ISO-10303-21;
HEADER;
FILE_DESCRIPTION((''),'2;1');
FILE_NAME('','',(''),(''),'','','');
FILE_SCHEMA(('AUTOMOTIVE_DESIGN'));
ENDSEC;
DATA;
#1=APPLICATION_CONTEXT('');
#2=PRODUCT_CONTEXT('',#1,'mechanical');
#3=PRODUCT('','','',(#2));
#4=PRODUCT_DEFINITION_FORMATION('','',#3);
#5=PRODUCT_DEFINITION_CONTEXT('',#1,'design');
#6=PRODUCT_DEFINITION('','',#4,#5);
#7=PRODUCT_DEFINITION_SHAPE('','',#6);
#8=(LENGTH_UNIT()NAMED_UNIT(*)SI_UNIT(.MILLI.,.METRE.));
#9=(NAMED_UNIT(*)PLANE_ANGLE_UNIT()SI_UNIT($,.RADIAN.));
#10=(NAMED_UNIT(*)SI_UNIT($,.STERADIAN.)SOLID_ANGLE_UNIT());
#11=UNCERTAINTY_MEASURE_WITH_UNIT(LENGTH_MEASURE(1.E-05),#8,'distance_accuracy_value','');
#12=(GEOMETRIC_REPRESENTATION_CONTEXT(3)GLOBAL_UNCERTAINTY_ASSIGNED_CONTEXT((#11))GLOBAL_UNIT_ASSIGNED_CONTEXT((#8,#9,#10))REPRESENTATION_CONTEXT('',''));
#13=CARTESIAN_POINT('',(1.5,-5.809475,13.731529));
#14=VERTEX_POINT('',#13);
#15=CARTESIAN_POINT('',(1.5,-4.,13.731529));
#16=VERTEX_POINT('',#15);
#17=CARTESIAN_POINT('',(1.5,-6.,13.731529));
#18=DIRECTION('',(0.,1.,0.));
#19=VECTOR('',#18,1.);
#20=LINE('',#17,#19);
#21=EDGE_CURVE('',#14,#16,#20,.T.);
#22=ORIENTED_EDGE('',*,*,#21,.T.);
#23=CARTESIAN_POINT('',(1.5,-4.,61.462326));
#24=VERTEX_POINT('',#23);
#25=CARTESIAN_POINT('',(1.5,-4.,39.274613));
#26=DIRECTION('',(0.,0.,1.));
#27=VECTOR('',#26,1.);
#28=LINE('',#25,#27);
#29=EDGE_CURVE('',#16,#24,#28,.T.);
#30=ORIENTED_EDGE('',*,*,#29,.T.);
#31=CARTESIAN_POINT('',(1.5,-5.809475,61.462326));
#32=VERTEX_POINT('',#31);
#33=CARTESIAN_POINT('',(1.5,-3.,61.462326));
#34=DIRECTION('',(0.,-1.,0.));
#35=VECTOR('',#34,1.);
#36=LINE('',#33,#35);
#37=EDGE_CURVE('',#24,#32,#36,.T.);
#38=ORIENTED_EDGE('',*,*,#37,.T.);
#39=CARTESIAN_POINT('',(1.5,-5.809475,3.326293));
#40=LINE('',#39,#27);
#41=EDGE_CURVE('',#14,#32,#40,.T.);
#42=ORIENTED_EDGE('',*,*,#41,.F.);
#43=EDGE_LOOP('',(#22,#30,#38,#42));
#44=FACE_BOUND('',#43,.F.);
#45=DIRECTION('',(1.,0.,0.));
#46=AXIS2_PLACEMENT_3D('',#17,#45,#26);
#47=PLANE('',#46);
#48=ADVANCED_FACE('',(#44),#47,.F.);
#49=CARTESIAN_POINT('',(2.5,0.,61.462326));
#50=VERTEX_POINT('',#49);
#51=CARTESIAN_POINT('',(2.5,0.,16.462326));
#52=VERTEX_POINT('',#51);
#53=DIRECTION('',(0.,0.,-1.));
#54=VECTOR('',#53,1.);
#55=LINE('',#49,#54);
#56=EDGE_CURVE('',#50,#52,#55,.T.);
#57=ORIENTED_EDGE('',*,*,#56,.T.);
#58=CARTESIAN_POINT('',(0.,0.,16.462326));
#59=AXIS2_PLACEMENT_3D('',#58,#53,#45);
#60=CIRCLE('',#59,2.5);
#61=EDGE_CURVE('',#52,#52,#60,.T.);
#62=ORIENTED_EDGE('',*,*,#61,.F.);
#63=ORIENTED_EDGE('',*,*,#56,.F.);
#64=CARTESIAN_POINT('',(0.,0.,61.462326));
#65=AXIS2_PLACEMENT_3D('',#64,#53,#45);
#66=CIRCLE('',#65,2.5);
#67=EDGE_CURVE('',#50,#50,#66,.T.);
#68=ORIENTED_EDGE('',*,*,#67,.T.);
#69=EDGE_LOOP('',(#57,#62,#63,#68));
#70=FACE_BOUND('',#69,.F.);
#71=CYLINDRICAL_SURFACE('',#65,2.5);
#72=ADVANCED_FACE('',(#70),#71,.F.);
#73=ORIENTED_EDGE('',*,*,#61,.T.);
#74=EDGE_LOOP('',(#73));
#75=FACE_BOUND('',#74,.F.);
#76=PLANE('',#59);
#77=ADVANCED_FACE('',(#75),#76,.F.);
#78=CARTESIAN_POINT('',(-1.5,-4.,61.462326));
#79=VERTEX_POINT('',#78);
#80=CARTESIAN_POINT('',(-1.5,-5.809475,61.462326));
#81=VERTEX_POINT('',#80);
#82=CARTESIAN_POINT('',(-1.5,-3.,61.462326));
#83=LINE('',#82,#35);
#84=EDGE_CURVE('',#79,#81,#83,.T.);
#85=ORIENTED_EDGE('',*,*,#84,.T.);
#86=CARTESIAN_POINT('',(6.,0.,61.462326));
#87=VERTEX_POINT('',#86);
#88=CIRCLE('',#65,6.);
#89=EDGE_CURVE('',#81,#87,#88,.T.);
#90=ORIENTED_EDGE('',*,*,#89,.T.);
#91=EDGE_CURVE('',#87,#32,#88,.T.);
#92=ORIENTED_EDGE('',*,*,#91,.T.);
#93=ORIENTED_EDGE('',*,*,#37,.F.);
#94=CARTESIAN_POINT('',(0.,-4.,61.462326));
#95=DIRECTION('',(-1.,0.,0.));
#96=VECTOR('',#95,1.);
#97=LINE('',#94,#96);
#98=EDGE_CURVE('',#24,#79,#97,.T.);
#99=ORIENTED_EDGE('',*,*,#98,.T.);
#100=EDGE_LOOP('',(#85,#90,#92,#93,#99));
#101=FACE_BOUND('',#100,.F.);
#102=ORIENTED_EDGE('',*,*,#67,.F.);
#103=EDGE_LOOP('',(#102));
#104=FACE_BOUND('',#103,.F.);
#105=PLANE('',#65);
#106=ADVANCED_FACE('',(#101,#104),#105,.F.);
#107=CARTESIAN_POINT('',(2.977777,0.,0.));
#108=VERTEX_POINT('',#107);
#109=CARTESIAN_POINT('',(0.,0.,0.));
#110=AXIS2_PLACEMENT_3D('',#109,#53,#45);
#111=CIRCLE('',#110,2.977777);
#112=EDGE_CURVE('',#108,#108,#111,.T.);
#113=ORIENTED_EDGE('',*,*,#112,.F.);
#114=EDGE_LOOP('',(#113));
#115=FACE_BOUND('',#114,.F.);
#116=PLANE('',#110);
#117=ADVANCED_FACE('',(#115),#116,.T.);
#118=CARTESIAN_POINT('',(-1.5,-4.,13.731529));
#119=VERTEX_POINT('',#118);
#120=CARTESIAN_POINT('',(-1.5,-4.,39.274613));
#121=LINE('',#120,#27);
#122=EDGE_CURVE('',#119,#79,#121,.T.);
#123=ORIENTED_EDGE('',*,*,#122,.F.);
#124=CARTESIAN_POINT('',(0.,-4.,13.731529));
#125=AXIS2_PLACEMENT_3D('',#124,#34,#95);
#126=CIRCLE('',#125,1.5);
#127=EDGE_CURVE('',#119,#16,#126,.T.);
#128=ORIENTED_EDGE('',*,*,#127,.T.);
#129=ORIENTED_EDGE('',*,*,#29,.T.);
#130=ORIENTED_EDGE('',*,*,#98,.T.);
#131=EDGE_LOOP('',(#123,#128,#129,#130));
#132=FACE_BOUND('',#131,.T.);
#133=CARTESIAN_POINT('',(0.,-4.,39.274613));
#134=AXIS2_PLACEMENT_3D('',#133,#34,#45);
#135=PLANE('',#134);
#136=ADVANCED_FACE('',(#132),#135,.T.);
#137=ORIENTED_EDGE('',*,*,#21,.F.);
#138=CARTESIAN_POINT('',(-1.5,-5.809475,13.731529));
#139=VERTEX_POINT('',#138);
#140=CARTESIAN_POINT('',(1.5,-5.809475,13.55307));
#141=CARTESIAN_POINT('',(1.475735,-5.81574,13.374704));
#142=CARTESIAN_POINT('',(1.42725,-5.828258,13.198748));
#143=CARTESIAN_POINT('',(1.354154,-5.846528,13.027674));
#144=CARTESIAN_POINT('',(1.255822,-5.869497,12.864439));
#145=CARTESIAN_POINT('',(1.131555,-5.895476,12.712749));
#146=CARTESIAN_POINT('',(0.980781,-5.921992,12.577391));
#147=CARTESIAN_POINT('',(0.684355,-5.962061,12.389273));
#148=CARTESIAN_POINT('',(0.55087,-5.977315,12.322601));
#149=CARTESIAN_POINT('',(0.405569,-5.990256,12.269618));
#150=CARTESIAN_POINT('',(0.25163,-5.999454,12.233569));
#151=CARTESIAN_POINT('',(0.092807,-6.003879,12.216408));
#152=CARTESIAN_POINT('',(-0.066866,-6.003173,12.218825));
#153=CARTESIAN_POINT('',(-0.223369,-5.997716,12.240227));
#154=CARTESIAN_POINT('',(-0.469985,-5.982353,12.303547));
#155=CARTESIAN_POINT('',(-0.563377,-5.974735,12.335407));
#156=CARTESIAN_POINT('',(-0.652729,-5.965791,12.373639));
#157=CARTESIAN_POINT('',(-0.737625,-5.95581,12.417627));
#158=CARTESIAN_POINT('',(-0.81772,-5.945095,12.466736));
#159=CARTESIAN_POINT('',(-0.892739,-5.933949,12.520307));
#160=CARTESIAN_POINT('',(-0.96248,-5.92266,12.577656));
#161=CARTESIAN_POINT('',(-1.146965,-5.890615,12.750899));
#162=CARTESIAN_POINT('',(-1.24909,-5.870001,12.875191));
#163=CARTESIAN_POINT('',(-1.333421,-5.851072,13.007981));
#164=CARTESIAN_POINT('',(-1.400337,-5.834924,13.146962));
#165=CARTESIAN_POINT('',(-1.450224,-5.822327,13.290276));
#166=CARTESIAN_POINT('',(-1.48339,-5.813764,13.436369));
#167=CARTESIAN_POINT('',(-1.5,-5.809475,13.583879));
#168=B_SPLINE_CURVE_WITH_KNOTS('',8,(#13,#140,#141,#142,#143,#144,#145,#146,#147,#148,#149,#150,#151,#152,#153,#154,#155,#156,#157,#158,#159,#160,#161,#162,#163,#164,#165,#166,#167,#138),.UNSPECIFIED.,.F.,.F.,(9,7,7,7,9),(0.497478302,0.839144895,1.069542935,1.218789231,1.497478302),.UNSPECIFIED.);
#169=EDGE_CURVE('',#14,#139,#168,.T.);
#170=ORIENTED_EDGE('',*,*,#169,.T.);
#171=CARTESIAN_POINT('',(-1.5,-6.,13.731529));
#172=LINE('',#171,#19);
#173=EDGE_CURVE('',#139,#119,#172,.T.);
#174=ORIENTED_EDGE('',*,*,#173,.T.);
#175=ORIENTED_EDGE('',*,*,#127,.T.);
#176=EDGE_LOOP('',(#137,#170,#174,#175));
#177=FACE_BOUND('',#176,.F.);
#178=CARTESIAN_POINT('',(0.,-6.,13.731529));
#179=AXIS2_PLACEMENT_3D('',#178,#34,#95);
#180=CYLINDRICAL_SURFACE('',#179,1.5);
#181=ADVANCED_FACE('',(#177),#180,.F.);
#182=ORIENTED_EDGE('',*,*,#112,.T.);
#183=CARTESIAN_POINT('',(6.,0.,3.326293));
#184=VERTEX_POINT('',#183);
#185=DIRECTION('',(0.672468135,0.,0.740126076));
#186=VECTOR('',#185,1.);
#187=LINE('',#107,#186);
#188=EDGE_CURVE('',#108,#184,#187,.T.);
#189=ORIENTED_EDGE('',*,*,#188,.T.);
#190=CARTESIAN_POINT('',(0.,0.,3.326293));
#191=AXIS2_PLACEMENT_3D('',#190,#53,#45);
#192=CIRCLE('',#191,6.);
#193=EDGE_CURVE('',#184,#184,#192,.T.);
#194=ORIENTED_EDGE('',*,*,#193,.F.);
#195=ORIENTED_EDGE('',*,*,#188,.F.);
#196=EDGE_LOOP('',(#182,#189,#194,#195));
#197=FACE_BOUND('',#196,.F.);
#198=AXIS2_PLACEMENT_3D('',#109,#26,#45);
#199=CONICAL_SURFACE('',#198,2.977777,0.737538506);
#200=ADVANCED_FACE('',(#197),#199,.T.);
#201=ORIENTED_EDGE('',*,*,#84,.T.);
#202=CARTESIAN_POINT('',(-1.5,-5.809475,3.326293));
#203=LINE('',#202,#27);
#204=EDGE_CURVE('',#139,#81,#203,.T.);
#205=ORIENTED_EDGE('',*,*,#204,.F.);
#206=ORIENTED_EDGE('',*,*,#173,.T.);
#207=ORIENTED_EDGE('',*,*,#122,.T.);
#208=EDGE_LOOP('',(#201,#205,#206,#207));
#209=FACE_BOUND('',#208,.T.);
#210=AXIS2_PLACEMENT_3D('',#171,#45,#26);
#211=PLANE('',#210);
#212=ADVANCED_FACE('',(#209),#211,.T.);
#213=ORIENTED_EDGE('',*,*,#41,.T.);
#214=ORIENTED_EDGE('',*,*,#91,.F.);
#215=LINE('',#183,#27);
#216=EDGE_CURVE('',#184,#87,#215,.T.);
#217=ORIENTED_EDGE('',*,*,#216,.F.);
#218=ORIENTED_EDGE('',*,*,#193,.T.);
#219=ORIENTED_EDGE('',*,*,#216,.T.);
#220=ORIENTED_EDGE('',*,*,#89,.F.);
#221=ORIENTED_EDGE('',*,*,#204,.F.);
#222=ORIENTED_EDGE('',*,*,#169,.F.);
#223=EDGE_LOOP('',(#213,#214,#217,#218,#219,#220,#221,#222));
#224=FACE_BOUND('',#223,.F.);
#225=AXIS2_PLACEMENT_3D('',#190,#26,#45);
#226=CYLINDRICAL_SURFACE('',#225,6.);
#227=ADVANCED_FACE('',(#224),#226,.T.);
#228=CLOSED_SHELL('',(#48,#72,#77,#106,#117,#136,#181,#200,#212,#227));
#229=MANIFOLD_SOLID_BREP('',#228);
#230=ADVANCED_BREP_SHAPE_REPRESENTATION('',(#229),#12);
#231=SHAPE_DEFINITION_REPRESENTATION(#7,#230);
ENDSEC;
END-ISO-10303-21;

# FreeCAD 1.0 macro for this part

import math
import FreeCAD as App
import Part
import Sketcher
from FreeCAD import Vector
Q = App.Units.Quantity

doc = App.newDocument("Part")
body = doc.addObject("PartDesign::Body", "Body")

sketch1 = doc.addObject("Sketcher::SketchObject", "Sketch")
body.addObject(sketch1)
sketch1.AttachmentSupport = (doc.XZ_Plane, [""])
sketch1.MapMode = "FlatFace"
sketch1.addGeometry(Part.LineSegment(Vector(6, 3.3, 0), Vector(6, 61.5, 0)), False)
sketch1.addGeometry(Part.LineSegment(Vector(6, 61.5, 0), Vector(2.5, 61.5, 0)), False)
sketch1.addGeometry(Part.LineSegment(Vector(2.5, 61.5, 0), Vector(2.5, 16.5, 0)), False)
sketch1.addGeometry(Part.LineSegment(Vector(2.5, 16.5, 0), Vector(0, 16.5, 0)), False)
sketch1.addGeometry(Part.LineSegment(Vector(0, 16.5, 0), Vector(0, 0, 0)), False)
sketch1.addGeometry(Part.LineSegment(Vector(0, 0, 0), Vector(3, 0, 0)), False)
sketch1.addGeometry(Part.LineSegment(Vector(3, 0, 0), Vector(6, 3.3, 0)), False)
sketch1.addConstraint(Sketcher.Constraint("Coincident", 0, 2, 1, 1))
sketch1.addConstraint(Sketcher.Constraint("Coincident", 1, 2, 2, 1))
sketch1.addConstraint(Sketcher.Constraint("Coincident", 2, 2, 3, 1))
sketch1.addConstraint(Sketcher.Constraint("Coincident", 3, 2, 4, 1))
sketch1.addConstraint(Sketcher.Constraint("Coincident", 4, 2, 5, 1))
sketch1.addConstraint(Sketcher.Constraint("Coincident", 5, 2, 6, 1))
sketch1.addConstraint(Sketcher.Constraint("Coincident", 6, 2, 0, 1))
sketch1.addConstraint(Sketcher.Constraint("Vertical", 0))
sketch1.addConstraint(Sketcher.Constraint("Horizontal", 1))
sketch1.addConstraint(Sketcher.Constraint("Vertical", 2))
sketch1.addConstraint(Sketcher.Constraint("Horizontal", 3))
sketch1.addConstraint(Sketcher.Constraint("Vertical", 4))
sketch1.addConstraint(Sketcher.Constraint("Horizontal", 5))
sketch1.addConstraint(Sketcher.Constraint("Coincident", 4, 2, -1, 1))
sketch1.addConstraint(Sketcher.Constraint("DistanceY", 2, 2, 2, 1, Q("45 mm")))
sketch1.addConstraint(Sketcher.Constraint("DistanceX", 1, 2, 1, 1, Q("3.5 mm")))
sketch1.addConstraint(Sketcher.Constraint("DistanceX", 3, 2, 3, 1, Q("2.5 mm")))
sketch1.addConstraint(Sketcher.Constraint("DistanceX", 5, 1, 5, 2, Q("2.977777 mm")))
sketch1.addConstraint(Sketcher.Constraint("DistanceY", 0, 1, 0, 2, Q("58.136033 mm")))
sketch1.addConstraint(Sketcher.Constraint("DistanceY", 4, 2, 4, 1, Q("16.462326 mm")))
revolution = doc.addObject("PartDesign::Revolution", "Revolution")
body.addObject(revolution)
revolution.Profile = sketch1
revolution.ReferenceAxis = (sketch1, ["V_Axis"])
revolution.Angle = 360

sketch2 = doc.addObject("Sketcher::SketchObject", "Sketch001")
body.addObject(sketch2)
sketch2.AttachmentSupport = (doc.XZ_Plane, [""])
sketch2.MapMode = "FlatFace"
sketch2.AttachmentOffset = App.Placement(Vector(0, 0, 6), App.Rotation())
sketch2.addGeometry(Part.LineSegment(Vector(-1.5, 64.8, 0), Vector(-1.5, 13.7, 0)), False)
sketch2.addGeometry(Part.ArcOfCircle(Part.Circle(Vector(0, 13.7, 0), Vector(0, 0, 1), 1.5), math.radians(180), math.radians(360)), False)
sketch2.addGeometry(Part.LineSegment(Vector(1.5, 13.7, 0), Vector(1.5, 64.8, 0)), False)
sketch2.addGeometry(Part.LineSegment(Vector(1.5, 64.8, 0), Vector(-1.5, 64.8, 0)), False)
sketch2.addConstraint(Sketcher.Constraint("Tangent", 0, 2, 1, 1))
sketch2.addConstraint(Sketcher.Constraint("Tangent", 1, 2, 2, 1))
sketch2.addConstraint(Sketcher.Constraint("Coincident", 2, 2, 3, 1))
sketch2.addConstraint(Sketcher.Constraint("Coincident", 3, 2, 0, 1))
sketch2.addConstraint(Sketcher.Constraint("Vertical", 0))
sketch2.addConstraint(Sketcher.Constraint("Vertical", 2))
sketch2.addConstraint(Sketcher.Constraint("Horizontal", 3))
sketch2.addConstraint(Sketcher.Constraint("PointOnObject", 1, 3, -2))
sketch2.addConstraint(Sketcher.Constraint("Radius", 1, Q("1.5 mm")))
sketch2.addConstraint(Sketcher.Constraint("DistanceY", 0, 2, 0, 1, Q("51.086168 mm")))
sketch2.addConstraint(Sketcher.Constraint("DistanceY", -1, 1, 1, 3, Q("13.731529 mm")))
pocket1 = doc.addObject("PartDesign::Pocket", "Pocket")
body.addObject(pocket1)
pocket1.Profile = sketch2
pocket1.Length = 2

doc.recompute()
